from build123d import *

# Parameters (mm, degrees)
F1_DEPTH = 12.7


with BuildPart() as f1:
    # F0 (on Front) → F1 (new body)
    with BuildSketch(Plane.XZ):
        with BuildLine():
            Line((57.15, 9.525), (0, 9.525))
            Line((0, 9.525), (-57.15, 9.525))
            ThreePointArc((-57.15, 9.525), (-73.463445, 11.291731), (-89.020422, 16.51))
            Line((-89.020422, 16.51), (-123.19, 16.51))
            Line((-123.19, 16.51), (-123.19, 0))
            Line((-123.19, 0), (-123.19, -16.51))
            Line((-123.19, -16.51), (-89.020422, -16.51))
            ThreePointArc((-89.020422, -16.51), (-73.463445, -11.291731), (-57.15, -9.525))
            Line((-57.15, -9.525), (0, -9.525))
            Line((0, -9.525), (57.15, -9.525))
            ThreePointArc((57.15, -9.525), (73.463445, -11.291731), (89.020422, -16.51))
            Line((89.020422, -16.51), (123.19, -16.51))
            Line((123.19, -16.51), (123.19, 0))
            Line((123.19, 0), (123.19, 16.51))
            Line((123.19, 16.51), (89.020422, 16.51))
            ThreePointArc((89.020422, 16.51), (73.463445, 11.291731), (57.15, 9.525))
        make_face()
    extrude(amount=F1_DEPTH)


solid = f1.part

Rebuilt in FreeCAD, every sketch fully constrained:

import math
import FreeCAD as App
import Part
import Sketcher
from FreeCAD import Vector
Q = App.Units.Quantity

doc = App.newDocument("Part")
body = doc.addObject("PartDesign::Body", "Body")

sketch1 = body.newObject("Sketcher::SketchObject", "Sketch")
sketch1.AttachmentSupport = (doc.getObject("XZ_Plane"), [""])
sketch1.MapMode = "FlatFace"
sketch1.addGeometry(Part.LineSegment(Vector(57.15, 9.525, 0), Vector(-57.15, 9.525, 0)), False)
sketch1.addGeometry(Part.ArcOfCircle(Part.Circle(Vector(-57.150001, 85.724997, 0), Vector(0, 0, 1), 76.199997), math.radians(-114.723963), math.radians(-89.999999)), False)
sketch1.addGeometry(Part.LineSegment(Vector(-89.020422, 16.51, 0), Vector(-123.19, 16.51, 0)), False)
sketch1.addGeometry(Part.LineSegment(Vector(-123.19, 16.51, 0), Vector(-123.19, -16.51, 0)), False)
sketch1.addGeometry(Part.LineSegment(Vector(-123.19, -16.51, 0), Vector(-89.020422, -16.51, 0)), False)
sketch1.addGeometry(Part.ArcOfCircle(Part.Circle(Vector(-57.150001, -85.724997, 0), Vector(0, 0, 1), 76.199997), math.radians(89.999999), math.radians(114.723963)), False)
sketch1.addGeometry(Part.LineSegment(Vector(-57.15, -9.525, 0), Vector(57.15, -9.525, 0)), False)
sketch1.addGeometry(Part.ArcOfCircle(Part.Circle(Vector(57.150001, -85.724997, 0), Vector(0, 0, 1), 76.199997), math.radians(65.276037), math.radians(90.000001)), False)
sketch1.addGeometry(Part.LineSegment(Vector(89.020422, -16.51, 0), Vector(123.19, -16.51, 0)), False)
sketch1.addGeometry(Part.LineSegment(Vector(123.19, -16.51, 0), Vector(123.19, 16.51, 0)), False)
sketch1.addGeometry(Part.LineSegment(Vector(123.19, 16.51, 0), Vector(89.020422, 16.51, 0)), False)
sketch1.addGeometry(Part.ArcOfCircle(Part.Circle(Vector(57.150001, 85.724997, 0), Vector(0, 0, 1), 76.199997), math.radians(-90.000001), math.radians(-65.276037)), False)
sketch1.addConstraint(Sketcher.Constraint("Tangent", 0, 2, 1, 2))
sketch1.addConstraint(Sketcher.Constraint("Coincident", 1, 1, 2, 1))
sketch1.addConstraint(Sketcher.Constraint("Coincident", 2, 2, 3, 1))
sketch1.addConstraint(Sketcher.Constraint("Coincident", 3, 2, 4, 1))
sketch1.addConstraint(Sketcher.Constraint("Coincident", 4, 2, 5, 2))
sketch1.addConstraint(Sketcher.Constraint("Tangent", 5, 1, 6, 1))
sketch1.addConstraint(Sketcher.Constraint("Tangent", 6, 2, 7, 2))
sketch1.addConstraint(Sketcher.Constraint("Coincident", 7, 1, 8, 1))
sketch1.addConstraint(Sketcher.Constraint("Coincident", 8, 2, 9, 1))
sketch1.addConstraint(Sketcher.Constraint("Coincident", 9, 2, 10, 1))
sketch1.addConstraint(Sketcher.Constraint("Coincident", 10, 2, 11, 2))
sketch1.addConstraint(Sketcher.Constraint("Tangent", 11, 1, 0, 1))
sketch1.addConstraint(Sketcher.Constraint("Horizontal", 0))
sketch1.addConstraint(Sketcher.Constraint("Horizontal", 2))
sketch1.addConstraint(Sketcher.Constraint("Vertical", 3))
sketch1.addConstraint(Sketcher.Constraint("Horizontal", 4))
sketch1.addConstraint(Sketcher.Constraint("Horizontal", 6))
sketch1.addConstraint(Sketcher.Constraint("Horizontal", 8))
sketch1.addConstraint(Sketcher.Constraint("Vertical", 9))
sketch1.addConstraint(Sketcher.Constraint("Horizontal", 10))
sketch1.addConstraint(Sketcher.Constraint("Equal", 1, 5))
sketch1.addConstraint(Sketcher.Constraint("Equal", 5, 7))
sketch1.addConstraint(Sketcher.Constraint("Equal", 7, 11))
sketch1.addConstraint(Sketcher.Constraint("Symmetric", 1, 3, 7, 3, -1, 1))
sketch1.addConstraint(Sketcher.Constraint("Symmetric", 2, 2, 8, 2, -1, 1))
sketch1.addConstraint(Sketcher.Constraint("Symmetric", 4, 2, 10, 2, -1, 1))
sketch1.addConstraint(Sketcher.Constraint("Symmetric", 4, 2, 7, 1, -2))
sketch1.addConstraint(Sketcher.Constraint("Radius", 1, Q("2.9999999 in")))
sketch1.addConstraint(Sketcher.Constraint("DistanceX", 0, 2, 0, 1, Q("4.5 in")))
sketch1.addConstraint(Sketcher.Constraint("DistanceY", 3, 2, 3, 1, Q("1.3 in")))
sketch1.addConstraint(Sketcher.Constraint("DistanceX", 2, 2, 0, 2, Q("2.6 in")))
sketch1.addConstraint(Sketcher.Constraint("DistanceY", 5, 3, 0, 2, Q("3.7499999 in")))
pad1 = body.newObject("PartDesign::Pad", "Pad")
pad1.Profile = sketch1
pad1.Length = Q("0.5 in")

doc.recompute()
